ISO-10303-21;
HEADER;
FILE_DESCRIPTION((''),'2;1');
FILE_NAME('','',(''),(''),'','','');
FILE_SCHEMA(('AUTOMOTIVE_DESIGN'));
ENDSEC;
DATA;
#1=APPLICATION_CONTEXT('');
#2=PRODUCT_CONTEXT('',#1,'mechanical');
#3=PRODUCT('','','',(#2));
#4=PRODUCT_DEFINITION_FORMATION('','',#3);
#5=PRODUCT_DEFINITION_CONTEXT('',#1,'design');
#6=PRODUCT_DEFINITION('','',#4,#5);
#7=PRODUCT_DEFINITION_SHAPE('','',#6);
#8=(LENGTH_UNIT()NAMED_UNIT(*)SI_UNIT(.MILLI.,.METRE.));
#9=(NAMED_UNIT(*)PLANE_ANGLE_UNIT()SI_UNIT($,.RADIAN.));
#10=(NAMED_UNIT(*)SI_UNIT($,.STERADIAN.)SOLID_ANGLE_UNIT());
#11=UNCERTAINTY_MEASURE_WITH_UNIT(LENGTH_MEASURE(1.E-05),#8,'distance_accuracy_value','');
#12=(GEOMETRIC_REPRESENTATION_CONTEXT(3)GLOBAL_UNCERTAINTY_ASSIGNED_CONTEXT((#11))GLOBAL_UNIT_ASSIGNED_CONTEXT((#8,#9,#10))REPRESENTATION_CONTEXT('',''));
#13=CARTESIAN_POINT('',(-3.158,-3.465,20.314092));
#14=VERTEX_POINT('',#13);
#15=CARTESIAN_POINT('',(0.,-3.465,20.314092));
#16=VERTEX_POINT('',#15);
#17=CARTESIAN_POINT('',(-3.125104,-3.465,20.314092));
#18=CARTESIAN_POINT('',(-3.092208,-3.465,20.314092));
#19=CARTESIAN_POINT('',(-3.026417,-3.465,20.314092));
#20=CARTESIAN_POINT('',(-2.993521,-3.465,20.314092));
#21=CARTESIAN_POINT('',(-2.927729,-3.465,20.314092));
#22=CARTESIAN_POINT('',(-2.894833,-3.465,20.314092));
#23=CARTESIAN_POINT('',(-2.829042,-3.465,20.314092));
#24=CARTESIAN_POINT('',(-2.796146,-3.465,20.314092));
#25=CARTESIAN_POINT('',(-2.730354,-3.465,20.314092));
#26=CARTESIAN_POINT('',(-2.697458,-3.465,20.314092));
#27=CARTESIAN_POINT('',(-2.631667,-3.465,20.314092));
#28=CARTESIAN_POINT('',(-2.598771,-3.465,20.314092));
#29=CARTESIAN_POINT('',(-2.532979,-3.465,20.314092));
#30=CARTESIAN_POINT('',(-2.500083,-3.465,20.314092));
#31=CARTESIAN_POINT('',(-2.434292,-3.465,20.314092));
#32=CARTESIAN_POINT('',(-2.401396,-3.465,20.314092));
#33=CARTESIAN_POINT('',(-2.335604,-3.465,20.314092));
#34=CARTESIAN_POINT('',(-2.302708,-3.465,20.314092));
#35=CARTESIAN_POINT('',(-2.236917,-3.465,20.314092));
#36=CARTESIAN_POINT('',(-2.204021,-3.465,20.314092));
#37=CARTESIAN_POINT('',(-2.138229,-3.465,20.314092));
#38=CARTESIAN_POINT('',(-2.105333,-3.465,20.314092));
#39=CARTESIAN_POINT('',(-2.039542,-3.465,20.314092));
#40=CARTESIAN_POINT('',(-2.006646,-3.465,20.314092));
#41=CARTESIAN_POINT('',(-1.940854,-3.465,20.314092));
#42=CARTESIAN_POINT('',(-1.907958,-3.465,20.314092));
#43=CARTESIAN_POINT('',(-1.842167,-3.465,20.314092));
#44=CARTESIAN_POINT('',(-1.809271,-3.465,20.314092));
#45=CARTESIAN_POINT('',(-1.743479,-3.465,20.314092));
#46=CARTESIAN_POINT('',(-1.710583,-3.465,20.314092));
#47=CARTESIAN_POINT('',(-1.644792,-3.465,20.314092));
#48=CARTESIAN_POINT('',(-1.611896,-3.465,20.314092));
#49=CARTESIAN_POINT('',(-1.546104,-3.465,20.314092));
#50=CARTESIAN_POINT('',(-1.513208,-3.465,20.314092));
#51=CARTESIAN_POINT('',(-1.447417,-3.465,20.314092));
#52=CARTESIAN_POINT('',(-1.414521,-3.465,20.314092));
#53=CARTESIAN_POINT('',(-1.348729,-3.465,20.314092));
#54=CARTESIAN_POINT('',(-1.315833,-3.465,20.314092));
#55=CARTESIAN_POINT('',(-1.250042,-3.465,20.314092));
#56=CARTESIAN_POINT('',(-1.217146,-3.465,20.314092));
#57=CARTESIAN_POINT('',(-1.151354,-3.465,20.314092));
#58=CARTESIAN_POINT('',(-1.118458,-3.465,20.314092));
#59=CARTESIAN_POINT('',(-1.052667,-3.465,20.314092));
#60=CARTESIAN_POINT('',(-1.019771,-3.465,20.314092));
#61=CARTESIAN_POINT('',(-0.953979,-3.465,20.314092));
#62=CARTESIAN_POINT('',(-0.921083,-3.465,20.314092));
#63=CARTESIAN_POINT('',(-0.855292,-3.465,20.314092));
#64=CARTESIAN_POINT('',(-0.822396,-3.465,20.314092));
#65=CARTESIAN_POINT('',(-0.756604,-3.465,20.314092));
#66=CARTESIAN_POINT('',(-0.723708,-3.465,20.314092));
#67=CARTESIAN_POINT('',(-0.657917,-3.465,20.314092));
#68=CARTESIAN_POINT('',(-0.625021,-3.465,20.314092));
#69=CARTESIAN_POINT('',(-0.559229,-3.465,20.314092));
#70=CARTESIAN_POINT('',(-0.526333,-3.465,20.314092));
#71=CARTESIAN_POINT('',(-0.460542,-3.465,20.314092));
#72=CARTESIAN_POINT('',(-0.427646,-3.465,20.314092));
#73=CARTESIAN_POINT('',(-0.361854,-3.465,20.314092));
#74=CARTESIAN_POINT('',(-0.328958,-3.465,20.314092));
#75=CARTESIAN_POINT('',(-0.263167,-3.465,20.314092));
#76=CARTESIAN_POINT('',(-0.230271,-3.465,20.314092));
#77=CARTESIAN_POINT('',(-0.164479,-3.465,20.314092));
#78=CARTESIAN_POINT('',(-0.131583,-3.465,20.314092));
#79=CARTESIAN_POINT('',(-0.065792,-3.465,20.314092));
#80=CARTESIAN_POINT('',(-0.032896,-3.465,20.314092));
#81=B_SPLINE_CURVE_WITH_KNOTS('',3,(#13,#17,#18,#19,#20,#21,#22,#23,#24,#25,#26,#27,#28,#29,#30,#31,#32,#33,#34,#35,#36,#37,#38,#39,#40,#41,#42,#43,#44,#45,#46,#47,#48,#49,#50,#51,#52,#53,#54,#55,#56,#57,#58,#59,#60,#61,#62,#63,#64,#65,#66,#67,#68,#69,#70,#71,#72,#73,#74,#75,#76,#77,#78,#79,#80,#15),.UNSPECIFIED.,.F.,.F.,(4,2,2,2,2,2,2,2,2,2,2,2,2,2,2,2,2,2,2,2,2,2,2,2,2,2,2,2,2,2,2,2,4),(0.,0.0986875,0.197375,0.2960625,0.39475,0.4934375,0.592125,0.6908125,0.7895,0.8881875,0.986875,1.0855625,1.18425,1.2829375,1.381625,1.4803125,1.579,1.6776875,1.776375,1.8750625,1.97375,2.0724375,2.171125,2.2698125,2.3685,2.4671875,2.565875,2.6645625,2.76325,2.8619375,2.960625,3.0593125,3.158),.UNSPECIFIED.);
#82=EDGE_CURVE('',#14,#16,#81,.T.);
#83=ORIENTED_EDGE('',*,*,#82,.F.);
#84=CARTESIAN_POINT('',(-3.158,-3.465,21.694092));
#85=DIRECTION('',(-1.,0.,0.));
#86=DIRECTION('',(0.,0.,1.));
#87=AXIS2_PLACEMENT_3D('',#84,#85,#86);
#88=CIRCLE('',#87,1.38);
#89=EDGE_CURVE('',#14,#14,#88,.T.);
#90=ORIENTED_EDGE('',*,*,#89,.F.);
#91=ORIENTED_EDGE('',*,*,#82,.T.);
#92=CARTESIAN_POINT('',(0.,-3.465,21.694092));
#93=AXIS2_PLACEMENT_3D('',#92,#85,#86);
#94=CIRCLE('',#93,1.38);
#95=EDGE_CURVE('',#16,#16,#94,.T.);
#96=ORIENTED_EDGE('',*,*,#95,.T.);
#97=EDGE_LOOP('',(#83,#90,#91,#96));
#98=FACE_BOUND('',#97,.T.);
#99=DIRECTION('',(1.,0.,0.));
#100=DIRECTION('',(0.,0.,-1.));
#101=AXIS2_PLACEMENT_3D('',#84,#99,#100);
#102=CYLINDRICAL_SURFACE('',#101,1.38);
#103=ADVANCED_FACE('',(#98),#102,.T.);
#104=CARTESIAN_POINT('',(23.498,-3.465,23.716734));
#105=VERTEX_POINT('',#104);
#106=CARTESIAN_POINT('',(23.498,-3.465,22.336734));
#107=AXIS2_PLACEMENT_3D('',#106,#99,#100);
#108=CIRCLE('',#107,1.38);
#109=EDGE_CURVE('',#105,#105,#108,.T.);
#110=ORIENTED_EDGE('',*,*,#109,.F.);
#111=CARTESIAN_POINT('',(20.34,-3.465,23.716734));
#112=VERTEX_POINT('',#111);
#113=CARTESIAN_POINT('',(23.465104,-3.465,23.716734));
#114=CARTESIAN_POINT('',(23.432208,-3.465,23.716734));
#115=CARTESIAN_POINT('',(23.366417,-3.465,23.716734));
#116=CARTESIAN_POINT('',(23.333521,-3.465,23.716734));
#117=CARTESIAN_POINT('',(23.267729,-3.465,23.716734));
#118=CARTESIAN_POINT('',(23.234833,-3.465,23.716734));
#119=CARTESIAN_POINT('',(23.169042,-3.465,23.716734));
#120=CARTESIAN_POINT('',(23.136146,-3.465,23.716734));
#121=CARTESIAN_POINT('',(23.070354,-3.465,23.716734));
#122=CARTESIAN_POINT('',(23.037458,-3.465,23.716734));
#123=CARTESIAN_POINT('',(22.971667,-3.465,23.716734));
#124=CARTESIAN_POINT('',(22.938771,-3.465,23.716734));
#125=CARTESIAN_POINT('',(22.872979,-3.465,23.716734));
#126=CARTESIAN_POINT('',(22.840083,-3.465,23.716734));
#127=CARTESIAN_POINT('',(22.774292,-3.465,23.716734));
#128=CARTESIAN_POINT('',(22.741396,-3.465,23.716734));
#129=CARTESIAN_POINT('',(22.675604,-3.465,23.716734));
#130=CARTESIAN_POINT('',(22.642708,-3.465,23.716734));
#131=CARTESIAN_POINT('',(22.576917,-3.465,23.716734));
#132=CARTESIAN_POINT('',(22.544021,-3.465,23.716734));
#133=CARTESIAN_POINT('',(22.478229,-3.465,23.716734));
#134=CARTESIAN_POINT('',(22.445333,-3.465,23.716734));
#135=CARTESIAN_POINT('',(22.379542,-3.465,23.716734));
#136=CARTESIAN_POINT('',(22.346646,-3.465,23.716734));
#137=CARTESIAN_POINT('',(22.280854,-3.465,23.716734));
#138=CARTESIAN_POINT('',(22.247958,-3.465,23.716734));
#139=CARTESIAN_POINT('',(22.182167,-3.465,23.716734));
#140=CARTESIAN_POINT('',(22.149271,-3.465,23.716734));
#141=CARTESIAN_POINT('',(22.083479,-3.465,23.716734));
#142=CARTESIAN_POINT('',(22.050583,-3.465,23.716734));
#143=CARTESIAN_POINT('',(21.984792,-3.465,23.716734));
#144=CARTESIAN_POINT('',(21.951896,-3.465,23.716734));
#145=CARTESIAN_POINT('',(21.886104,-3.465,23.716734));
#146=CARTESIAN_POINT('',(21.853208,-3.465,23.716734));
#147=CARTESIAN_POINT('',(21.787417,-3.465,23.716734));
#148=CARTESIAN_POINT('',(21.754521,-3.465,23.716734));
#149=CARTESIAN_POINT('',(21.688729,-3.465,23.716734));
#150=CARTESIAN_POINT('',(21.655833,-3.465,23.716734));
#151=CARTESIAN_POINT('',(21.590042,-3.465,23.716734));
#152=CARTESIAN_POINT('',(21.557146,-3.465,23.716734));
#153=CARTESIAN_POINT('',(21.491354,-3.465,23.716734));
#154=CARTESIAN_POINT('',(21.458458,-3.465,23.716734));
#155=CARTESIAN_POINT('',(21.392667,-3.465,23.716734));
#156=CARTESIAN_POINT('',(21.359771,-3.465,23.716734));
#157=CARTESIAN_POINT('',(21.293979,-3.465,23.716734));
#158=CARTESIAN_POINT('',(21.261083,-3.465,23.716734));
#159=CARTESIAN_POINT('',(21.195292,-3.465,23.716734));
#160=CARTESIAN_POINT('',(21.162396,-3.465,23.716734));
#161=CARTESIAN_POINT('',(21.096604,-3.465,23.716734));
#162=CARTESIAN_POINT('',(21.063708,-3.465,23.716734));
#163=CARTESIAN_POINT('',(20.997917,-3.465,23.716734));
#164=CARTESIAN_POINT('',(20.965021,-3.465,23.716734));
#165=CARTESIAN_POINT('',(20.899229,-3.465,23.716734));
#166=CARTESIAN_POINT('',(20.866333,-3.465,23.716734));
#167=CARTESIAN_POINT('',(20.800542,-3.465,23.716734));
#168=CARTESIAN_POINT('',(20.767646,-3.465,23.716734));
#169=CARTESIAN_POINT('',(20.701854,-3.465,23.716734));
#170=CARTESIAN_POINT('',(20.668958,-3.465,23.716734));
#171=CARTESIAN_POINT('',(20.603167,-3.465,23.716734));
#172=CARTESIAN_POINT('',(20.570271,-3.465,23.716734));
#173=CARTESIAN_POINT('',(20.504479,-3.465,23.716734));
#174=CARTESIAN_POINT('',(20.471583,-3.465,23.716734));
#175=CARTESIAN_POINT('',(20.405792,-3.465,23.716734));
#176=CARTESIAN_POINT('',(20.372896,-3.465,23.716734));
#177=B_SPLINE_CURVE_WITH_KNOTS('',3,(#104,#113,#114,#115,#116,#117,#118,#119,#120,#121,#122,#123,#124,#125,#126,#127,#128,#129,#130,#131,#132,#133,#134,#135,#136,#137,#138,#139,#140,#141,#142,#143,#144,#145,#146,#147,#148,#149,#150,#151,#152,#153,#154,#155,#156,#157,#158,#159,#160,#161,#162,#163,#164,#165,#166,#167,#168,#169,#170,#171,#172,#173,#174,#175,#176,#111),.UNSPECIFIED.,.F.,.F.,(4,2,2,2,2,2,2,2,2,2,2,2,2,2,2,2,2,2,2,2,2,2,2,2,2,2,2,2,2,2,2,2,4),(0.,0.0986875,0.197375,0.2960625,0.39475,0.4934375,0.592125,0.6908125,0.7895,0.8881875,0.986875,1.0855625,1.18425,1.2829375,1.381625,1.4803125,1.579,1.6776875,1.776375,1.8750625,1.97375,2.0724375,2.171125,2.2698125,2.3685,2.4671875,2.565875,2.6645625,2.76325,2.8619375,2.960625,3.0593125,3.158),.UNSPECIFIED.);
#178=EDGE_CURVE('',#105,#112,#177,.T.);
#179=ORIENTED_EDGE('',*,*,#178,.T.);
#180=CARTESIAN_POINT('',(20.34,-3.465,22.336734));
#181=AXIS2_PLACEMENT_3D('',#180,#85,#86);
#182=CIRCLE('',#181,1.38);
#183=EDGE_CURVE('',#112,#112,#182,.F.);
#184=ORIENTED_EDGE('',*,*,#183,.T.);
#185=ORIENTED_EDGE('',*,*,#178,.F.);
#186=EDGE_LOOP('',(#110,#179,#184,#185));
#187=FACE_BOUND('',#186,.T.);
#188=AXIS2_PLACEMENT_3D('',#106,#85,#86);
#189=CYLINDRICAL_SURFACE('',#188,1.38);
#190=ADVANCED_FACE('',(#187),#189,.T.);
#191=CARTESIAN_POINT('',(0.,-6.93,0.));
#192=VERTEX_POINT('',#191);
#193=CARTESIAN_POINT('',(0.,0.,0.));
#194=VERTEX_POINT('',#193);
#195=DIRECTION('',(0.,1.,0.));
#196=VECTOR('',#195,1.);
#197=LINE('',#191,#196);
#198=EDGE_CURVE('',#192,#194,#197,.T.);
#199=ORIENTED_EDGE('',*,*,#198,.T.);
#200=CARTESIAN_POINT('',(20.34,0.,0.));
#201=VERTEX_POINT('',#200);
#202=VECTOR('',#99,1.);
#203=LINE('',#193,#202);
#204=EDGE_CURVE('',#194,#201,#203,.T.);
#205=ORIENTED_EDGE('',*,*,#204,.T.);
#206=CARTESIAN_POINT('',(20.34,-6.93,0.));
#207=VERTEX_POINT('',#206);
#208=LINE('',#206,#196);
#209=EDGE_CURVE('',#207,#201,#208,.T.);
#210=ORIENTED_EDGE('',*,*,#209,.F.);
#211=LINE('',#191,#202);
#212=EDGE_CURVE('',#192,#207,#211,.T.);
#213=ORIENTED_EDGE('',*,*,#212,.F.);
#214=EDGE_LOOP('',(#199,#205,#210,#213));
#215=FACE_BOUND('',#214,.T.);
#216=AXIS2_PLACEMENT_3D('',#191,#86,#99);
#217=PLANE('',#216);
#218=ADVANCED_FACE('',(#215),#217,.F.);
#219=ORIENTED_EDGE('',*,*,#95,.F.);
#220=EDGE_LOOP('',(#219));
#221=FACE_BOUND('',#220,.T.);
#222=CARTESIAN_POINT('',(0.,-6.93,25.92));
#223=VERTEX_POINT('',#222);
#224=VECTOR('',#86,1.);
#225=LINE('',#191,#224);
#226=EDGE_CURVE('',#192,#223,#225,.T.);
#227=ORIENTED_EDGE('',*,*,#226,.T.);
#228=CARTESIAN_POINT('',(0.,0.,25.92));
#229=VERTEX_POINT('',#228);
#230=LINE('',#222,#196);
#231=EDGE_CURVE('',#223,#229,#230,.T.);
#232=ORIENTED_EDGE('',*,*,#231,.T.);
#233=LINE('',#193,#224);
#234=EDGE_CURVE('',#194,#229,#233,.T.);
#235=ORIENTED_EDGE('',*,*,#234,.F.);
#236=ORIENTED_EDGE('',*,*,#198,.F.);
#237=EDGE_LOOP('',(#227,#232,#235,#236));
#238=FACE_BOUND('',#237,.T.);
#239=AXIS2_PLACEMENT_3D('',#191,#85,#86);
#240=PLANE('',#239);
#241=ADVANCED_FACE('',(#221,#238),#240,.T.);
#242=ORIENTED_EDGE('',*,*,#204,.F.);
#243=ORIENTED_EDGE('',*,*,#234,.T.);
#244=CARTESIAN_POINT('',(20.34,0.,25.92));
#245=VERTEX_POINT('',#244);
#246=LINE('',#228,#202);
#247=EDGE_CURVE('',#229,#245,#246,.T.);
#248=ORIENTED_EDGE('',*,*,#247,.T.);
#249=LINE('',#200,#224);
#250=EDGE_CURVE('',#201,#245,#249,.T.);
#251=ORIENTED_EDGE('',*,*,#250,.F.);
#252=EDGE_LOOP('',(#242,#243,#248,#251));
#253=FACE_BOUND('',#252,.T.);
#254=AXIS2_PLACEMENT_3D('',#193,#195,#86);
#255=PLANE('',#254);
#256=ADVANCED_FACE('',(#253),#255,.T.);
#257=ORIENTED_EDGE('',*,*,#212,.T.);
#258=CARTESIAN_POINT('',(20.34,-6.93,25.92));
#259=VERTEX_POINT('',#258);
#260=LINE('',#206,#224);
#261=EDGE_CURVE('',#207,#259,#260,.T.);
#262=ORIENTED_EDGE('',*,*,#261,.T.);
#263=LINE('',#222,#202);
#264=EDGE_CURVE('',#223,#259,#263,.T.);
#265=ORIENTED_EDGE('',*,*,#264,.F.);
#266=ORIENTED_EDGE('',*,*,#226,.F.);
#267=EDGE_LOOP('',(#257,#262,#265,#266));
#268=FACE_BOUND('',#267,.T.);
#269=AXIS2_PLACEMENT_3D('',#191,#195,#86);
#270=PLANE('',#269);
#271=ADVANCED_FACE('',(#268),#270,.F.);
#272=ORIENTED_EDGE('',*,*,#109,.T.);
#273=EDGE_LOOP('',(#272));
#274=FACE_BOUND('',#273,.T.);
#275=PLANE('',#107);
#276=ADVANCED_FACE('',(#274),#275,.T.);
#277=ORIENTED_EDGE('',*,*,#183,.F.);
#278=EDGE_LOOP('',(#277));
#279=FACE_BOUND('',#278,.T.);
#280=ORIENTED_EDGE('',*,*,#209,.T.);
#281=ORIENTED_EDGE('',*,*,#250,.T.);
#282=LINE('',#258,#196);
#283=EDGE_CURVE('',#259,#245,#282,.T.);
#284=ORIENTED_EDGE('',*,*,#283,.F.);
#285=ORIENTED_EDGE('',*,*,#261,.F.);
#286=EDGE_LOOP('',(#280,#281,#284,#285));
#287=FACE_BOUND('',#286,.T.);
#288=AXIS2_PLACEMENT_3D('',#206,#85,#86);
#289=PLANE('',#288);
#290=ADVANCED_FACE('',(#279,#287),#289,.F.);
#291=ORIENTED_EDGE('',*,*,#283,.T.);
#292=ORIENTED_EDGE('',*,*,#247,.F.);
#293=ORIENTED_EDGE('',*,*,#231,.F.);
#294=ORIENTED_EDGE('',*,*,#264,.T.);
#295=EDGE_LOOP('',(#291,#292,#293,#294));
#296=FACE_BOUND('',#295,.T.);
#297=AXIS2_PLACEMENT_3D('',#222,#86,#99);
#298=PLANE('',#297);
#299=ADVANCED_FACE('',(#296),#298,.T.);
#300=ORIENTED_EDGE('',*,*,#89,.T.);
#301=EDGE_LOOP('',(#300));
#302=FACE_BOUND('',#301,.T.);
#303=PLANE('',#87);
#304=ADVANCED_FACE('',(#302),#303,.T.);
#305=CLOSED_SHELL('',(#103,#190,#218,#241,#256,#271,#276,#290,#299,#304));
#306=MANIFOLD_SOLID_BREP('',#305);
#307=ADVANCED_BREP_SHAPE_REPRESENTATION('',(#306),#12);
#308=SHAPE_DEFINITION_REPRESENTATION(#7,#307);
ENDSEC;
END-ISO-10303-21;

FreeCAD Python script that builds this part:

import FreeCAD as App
import Part
import Sketcher
from FreeCAD import Vector


def add_polygon(sketch, points):
    """Adds a closed chain of lines whose ends are joined by coincident constraints."""
    first, n = sketch.GeometryCount, len(points)
    for a, b in zip(points, points[1:] + points[:1]):
        sketch.addGeometry(Part.LineSegment(App.Vector(*a, 0), App.Vector(*b, 0)), False)
    for i in range(n):
        sketch.addConstraint(Sketcher.Constraint("Coincident", first + i, 2, first + (i + 1) % n, 1))

doc = App.newDocument("Part")
body = doc.addObject("PartDesign::Body", "Body")

# Sketch on XZ plane
sketch1 = doc.addObject("Sketcher::SketchObject", "Sketch")
body.addObject(sketch1)
sketch1.AttachmentSupport = (doc.XZ_Plane, [""])
sketch1.MapMode = "FlatFace"
add_polygon(sketch1, [(0, 0), (0, 26), (20, 26), (20, 0)])  # lines 0-3
sketch1.addConstraint(Sketcher.Constraint("Vertical", 0))
sketch1.addConstraint(Sketcher.Constraint("Horizontal", 1))
sketch1.addConstraint(Sketcher.Constraint("Vertical", 2))
sketch1.addConstraint(Sketcher.Constraint("Horizontal", 3))
sketch1.addConstraint(Sketcher.Constraint("Coincident", 3, 2, -1, 1))
sketch1.addConstraint(Sketcher.Constraint("DistanceX", 1, 1, 1, 2, 20.34))
sketch1.addConstraint(Sketcher.Constraint("DistanceY", 0, 1, 0, 2, 25.92))
pad1 = doc.addObject("PartDesign::Pad", "Pad")
body.addObject(pad1)
pad1.Profile = sketch1
pad1.Length = 6.93

# Sketch on YZ plane
sketch2 = doc.addObject("Sketcher::SketchObject", "Sketch001")
body.addObject(sketch2)
sketch2.AttachmentSupport = (doc.YZ_Plane, [""])
sketch2.MapMode = "FlatFace"
sketch2.AttachmentOffset = App.Placement(Vector(0, 0, 20.34), App.Rotation())
sketch2.addGeometry(Part.Circle(Vector(-3.5, 22.3, 0), Vector(0, 0, 1), 1.4), False)
sketch2.addConstraint(Sketcher.Constraint("Diameter", 0, 2.76))
sketch2.addConstraint(Sketcher.Constraint("DistanceX", 0, 3, -1, 1, 3.465))
sketch2.addConstraint(Sketcher.Constraint("DistanceY", -1, 1, 0, 3, 22.336734))
pad2 = doc.addObject("PartDesign::Pad", "Pad001")
body.addObject(pad2)
pad2.Profile = sketch2
pad2.Length = 3.158

# Sketch on YZ plane
sketch3 = doc.addObject("Sketcher::SketchObject", "Sketch002")
body.addObject(sketch3)
sketch3.AttachmentSupport = (doc.YZ_Plane, [""])
sketch3.MapMode = "FlatFace"
sketch3.addGeometry(Part.Circle(Vector(-3.5, 21.7, 0), Vector(0, 0, 1), 1.4), False)
sketch3.addConstraint(Sketcher.Constraint("Diameter", 0, 2.76))
sketch3.addConstraint(Sketcher.Constraint("DistanceX", 0, 3, -1, 1, 3.465))
sketch3.addConstraint(Sketcher.Constraint("DistanceY", -1, 1, 0, 3, 21.694092))
pad3 = doc.addObject("PartDesign::Pad", "Pad002")
body.addObject(pad3)
pad3.Profile = sketch3
pad3.Length = 3.158
pad3.Reversed = True

doc.recompute()
